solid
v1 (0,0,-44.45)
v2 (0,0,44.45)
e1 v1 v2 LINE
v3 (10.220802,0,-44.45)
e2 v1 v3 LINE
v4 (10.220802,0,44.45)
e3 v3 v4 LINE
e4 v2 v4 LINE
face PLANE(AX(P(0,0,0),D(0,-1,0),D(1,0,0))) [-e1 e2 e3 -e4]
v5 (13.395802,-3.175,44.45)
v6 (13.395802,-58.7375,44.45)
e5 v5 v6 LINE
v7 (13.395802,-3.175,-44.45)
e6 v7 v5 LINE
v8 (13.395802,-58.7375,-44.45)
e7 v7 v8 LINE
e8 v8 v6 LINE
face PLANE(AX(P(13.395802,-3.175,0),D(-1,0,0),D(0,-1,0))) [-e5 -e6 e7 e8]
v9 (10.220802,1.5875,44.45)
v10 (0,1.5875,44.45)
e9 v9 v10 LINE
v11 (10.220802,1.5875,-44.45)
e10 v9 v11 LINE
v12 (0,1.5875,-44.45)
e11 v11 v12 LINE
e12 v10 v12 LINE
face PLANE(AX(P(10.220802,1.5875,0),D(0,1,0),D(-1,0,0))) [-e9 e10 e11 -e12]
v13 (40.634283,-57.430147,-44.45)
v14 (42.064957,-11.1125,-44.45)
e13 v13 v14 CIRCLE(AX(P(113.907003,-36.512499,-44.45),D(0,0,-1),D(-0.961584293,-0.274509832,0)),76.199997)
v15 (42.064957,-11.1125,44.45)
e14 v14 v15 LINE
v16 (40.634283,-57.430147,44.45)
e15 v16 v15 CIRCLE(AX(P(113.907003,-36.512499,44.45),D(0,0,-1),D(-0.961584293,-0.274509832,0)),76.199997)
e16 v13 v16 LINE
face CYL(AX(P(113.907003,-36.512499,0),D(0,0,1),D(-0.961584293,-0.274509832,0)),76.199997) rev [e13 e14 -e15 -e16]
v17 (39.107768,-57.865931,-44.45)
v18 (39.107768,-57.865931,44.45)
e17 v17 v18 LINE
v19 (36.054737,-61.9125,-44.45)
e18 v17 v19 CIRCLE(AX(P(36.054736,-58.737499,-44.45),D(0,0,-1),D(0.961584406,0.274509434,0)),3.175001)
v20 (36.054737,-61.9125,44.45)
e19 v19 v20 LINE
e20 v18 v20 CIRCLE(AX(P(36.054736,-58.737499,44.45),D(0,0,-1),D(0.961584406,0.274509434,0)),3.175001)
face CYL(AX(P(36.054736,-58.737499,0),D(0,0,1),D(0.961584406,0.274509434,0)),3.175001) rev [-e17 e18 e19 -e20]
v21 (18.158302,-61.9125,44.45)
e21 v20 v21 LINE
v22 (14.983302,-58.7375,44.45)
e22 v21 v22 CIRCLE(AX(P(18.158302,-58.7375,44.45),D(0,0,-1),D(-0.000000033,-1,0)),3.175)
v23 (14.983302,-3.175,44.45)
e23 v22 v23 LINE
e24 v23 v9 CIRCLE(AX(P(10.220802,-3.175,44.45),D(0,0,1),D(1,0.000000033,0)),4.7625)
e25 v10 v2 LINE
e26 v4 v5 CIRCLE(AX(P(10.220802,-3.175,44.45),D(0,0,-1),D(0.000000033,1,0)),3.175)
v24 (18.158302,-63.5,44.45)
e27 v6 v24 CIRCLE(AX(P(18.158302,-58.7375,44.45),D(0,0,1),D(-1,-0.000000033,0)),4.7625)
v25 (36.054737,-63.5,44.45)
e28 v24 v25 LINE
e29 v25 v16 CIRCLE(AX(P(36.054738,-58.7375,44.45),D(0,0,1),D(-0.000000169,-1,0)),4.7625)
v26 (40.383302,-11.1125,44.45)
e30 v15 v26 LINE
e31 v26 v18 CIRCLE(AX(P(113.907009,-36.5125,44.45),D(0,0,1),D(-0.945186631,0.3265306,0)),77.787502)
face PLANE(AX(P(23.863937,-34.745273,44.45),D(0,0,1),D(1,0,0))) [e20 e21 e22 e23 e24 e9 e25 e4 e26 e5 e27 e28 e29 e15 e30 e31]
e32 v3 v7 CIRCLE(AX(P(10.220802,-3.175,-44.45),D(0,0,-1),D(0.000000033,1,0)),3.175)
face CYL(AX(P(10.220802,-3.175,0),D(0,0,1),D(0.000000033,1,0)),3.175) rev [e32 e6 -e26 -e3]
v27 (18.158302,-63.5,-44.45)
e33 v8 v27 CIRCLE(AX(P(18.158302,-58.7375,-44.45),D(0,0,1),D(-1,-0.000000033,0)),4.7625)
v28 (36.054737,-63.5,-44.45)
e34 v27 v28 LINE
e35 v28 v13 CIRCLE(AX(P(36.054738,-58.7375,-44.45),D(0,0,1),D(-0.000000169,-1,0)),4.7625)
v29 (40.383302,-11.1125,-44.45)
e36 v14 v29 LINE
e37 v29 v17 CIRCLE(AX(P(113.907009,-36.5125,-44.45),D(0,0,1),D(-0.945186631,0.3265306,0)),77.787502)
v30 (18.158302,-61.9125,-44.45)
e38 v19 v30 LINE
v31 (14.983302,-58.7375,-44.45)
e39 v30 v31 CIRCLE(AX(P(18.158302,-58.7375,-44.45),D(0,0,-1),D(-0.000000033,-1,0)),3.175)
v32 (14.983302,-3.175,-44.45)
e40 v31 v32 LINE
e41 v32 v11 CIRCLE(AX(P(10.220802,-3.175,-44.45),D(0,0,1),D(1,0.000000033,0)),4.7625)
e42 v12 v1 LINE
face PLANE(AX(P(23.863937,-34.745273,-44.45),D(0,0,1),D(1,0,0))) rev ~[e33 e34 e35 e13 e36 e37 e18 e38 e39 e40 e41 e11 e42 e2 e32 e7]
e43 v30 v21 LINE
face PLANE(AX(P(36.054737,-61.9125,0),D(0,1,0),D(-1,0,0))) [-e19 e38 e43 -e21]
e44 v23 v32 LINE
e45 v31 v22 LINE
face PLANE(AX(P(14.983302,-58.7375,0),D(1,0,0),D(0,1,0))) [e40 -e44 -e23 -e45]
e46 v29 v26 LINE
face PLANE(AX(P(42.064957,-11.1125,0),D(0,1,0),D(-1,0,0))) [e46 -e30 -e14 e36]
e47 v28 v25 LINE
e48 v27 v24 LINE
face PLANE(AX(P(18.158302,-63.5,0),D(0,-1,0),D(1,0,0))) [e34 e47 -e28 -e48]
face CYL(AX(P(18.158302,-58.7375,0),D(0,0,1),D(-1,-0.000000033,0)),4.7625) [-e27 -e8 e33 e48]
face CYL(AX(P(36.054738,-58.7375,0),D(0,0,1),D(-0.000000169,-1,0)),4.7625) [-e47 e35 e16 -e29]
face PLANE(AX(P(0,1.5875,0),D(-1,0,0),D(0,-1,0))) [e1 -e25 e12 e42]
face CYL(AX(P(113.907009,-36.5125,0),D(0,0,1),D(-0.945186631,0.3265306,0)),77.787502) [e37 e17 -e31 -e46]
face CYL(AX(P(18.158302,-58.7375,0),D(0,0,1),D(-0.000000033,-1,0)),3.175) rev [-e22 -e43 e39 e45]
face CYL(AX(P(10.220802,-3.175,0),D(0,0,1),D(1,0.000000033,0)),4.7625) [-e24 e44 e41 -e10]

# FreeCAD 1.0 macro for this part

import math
import FreeCAD as App
import Part
import Sketcher
Q = App.Units.Quantity

doc = App.newDocument("Part")
body = doc.addObject("PartDesign::Body", "Body")

# Sketch on XY plane
sketch1 = body.newObject("Sketcher::SketchObject", "Sketch")
sketch1.AttachmentSupport = (doc.getObject("XY_Plane"), [""])
sketch1.MapMode = "FlatFace"
sketch1.addGeometry(Part.LineSegment(App.Vector(0, 1.6, 0), App.Vector(0, 0, 0)), False)
sketch1.addGeometry(Part.LineSegment(App.Vector(0, 0, 0), App.Vector(10.2, 0, 0)), False)
sketch1.addGeometry(Part.ArcOfCircle(Part.Circle(App.Vector(10.2, -3.2, 0), App.Vector(0, 0, 1), 3.2), math.radians(0), math.radians(90)), False)
sketch1.addGeometry(Part.LineSegment(App.Vector(13.4, -3.2, 0), App.Vector(13.4, -58.7, 0)), False)
sketch1.addGeometry(Part.ArcOfCircle(Part.Circle(App.Vector(18.2, -58.7, 0), App.Vector(0, 0, 1), 4.8), math.radians(-180), math.radians(-90)), False)
sketch1.addGeometry(Part.LineSegment(App.Vector(18.2, -63.5, 0), App.Vector(36.1, -63.5, 0)), False)
sketch1.addGeometry(Part.ArcOfCircle(Part.Circle(App.Vector(36.1, -58.7, 0), App.Vector(0, 0, 1), 4.8), math.radians(-90), math.radians(16)), False)
sketch1.addGeometry(Part.ArcOfCircle(Part.Circle(App.Vector(113.9, -36.5, 0), App.Vector(0, 0, 1), 76.2), math.radians(161), math.radians(196)), False)
sketch1.addGeometry(Part.LineSegment(App.Vector(42.1, -11.1, 0), App.Vector(40.4, -11.1, 0)), False)
sketch1.addGeometry(Part.ArcOfCircle(Part.Circle(App.Vector(113.9, -36.5, 0), App.Vector(0, 0, 1), 77.8), math.radians(161), math.radians(196)), False)
sketch1.addGeometry(Part.ArcOfCircle(Part.Circle(App.Vector(36.1, -58.7, 0), App.Vector(0, 0, 1), 3.2), math.radians(-90), math.radians(16)), False)
sketch1.addGeometry(Part.LineSegment(App.Vector(36.1, -61.9, 0), App.Vector(18.2, -61.9, 0)), False)
sketch1.addGeometry(Part.ArcOfCircle(Part.Circle(App.Vector(18.2, -58.7, 0), App.Vector(0, 0, 1), 3.2), math.radians(-180), math.radians(-90)), False)
sketch1.addGeometry(Part.LineSegment(App.Vector(15, -58.7, 0), App.Vector(15, -3.2, 0)), False)
sketch1.addGeometry(Part.ArcOfCircle(Part.Circle(App.Vector(10.2, -3.2, 0), App.Vector(0, 0, 1), 4.8), math.radians(0), math.radians(90)), False)
sketch1.addGeometry(Part.LineSegment(App.Vector(10.2, 1.6, 0), App.Vector(0, 1.6, 0)), False)
sketch1.addConstraint(Sketcher.Constraint("Coincident", 0, 2, 1, 1))
sketch1.addConstraint(Sketcher.Constraint("Tangent", 1, 2, 2, 2))
sketch1.addConstraint(Sketcher.Constraint("Tangent", 2, 1, 3, 1))
sketch1.addConstraint(Sketcher.Constraint("Tangent", 3, 2, 4, 1))
sketch1.addConstraint(Sketcher.Constraint("Tangent", 4, 2, 5, 1))
sketch1.addConstraint(Sketcher.Constraint("Tangent", 5, 2, 6, 1))
sketch1.addConstraint(Sketcher.Constraint("Tangent", 6, 2, 7, 2))
sketch1.addConstraint(Sketcher.Constraint("Coincident", 7, 1, 8, 1))
sketch1.addConstraint(Sketcher.Constraint("Coincident", 8, 2, 9, 1))
sketch1.addConstraint(Sketcher.Constraint("Tangent", 9, 2, 10, 2))
sketch1.addConstraint(Sketcher.Constraint("Tangent", 10, 1, 11, 1))
sketch1.addConstraint(Sketcher.Constraint("Tangent", 11, 2, 12, 2))
sketch1.addConstraint(Sketcher.Constraint("Tangent", 12, 1, 13, 1))
sketch1.addConstraint(Sketcher.Constraint("Tangent", 13, 2, 14, 1))
sketch1.addConstraint(Sketcher.Constraint("Tangent", 14, 2, 15, 1))
sketch1.addConstraint(Sketcher.Constraint("Coincident", 15, 2, 0, 1))
sketch1.addConstraint(Sketcher.Constraint("Vertical", 0))
sketch1.addConstraint(Sketcher.Constraint("Horizontal", 1))
sketch1.addConstraint(Sketcher.Constraint("Vertical", 3))
sketch1.addConstraint(Sketcher.Constraint("Horizontal", 5))
sketch1.addConstraint(Sketcher.Constraint("Horizontal", 8))
sketch1.addConstraint(Sketcher.Constraint("Horizontal", 11))
sketch1.addConstraint(Sketcher.Constraint("Vertical", 13))
sketch1.addConstraint(Sketcher.Constraint("Horizontal", 15))
sketch1.addConstraint(Sketcher.Constraint("Coincident", 0, 2, -1, 1))
sketch1.addConstraint(Sketcher.Constraint("Coincident", 9, 3, 7, 3))
sketch1.addConstraint(Sketcher.Constraint("Coincident", 10, 3, 6, 3))
sketch1.addConstraint(Sketcher.Constraint("Coincident", 12, 3, 4, 3))
sketch1.addConstraint(Sketcher.Constraint("Coincident", 14, 3, 2, 3))
sketch1.addConstraint(Sketcher.Constraint("Equal", 4, 6))
sketch1.addConstraint(Sketcher.Constraint("Equal", 2, 10))
sketch1.addConstraint(Sketcher.Constraint("Radius", 7, Q("2.9999999 in")))
sketch1.addConstraint(Sketcher.Constraint("Radius", 2, Q("0.125 in")))
sketch1.addConstraint(Sketcher.Constraint("Radius", 4, Q("0.1875 in")))
sketch1.addConstraint(Sketcher.Constraint("DistanceY", 4, 2, -1, 1, Q("2.5 in")))
sketch1.addConstraint(Sketcher.Constraint("DistanceY", 7, 3, -1, 1, Q("1.4374999 in")))
sketch1.addConstraint(Sketcher.Constraint("DistanceY", 7, 1, -1, 1, Q("0.4375 in")))
sketch1.addConstraint(Sketcher.Constraint("DistanceX", 2, 1, 8, 2, Q("1.0625 in")))
sketch1.addConstraint(Sketcher.Constraint("DistanceX", -1, 1, 2, 3, Q("10.220802 mm")))
pad1 = body.newObject("PartDesign::Pad", "Pad")
pad1.Profile = sketch1
pad1.Length = Q("3.5 in")
pad1.Midplane = True

doc.recompute()
